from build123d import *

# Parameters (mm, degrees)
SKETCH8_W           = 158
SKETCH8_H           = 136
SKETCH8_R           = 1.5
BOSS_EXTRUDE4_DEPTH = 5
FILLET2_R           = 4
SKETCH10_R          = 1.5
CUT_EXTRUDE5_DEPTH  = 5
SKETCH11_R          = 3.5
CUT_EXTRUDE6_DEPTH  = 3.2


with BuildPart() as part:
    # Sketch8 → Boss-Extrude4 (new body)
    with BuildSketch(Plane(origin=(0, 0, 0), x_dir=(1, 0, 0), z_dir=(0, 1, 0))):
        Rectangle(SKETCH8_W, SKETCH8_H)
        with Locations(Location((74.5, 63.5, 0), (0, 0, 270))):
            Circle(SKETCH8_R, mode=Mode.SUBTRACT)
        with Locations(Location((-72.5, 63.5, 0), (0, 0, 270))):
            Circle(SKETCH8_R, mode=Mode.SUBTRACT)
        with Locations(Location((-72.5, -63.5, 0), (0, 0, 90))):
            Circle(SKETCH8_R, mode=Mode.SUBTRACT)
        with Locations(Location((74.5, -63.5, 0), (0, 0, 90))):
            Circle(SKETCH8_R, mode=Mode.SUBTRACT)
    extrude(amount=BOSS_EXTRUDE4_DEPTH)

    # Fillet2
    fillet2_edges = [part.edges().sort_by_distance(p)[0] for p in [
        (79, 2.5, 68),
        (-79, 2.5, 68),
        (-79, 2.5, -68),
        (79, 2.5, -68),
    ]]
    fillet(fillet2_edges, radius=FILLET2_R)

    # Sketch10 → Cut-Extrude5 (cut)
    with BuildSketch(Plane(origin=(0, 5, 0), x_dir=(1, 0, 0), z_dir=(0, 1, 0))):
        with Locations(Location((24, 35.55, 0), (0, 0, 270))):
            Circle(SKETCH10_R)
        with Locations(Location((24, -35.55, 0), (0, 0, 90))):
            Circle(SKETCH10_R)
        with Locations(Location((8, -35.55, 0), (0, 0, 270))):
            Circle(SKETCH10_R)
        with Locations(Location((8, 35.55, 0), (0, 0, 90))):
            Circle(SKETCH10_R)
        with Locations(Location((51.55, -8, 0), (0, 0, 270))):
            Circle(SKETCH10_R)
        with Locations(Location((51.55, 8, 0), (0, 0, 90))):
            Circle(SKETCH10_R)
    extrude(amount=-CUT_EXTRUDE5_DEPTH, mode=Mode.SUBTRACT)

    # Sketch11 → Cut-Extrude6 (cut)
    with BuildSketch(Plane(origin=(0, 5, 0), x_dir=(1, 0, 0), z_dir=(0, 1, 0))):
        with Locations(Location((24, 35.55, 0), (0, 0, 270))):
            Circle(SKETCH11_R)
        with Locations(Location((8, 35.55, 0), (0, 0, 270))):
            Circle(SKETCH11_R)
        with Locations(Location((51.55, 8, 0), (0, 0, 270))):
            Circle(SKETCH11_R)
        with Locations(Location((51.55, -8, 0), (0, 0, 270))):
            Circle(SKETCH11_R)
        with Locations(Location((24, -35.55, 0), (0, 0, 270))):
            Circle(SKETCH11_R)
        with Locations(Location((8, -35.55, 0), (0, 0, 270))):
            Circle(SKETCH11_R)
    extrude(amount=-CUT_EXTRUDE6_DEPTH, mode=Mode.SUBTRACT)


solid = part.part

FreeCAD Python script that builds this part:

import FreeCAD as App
import Part
import Sketcher

V = App.Vector
Q = App.Units.Quantity


def edges_at(feature, points):
    """Names of the edges that pass closest to the given points."""
    edges = feature.Shape.Edges
    near = lambda p: min(range(len(edges)), key=lambda i: edges[i].distToShape(Part.Vertex(*p))[0])
    return sorted({f"Edge{near(p) + 1}" for p in points})


def add_polygon(sketch, points):
    """Adds a closed chain of lines whose ends are joined by coincident constraints."""
    first, n = sketch.GeometryCount, len(points)
    for a, b in zip(points, points[1:] + points[:1]):
        sketch.addGeometry(Part.LineSegment(App.Vector(*a, 0), App.Vector(*b, 0)), False)
    for i in range(n):
        sketch.addConstraint(Sketcher.Constraint("Coincident", first + i, 2, first + (i + 1) % n, 1))

doc = App.newDocument("Part")
body = doc.addObject("PartDesign::Body", "Body")

# Sketch on XZ plane
sketch1 = doc.addObject("Sketcher::SketchObject", "Sketch")
body.addObject(sketch1)
sketch1.AttachmentSupport = (doc.XZ_Plane, [""])
sketch1.MapMode = "FlatFace"
add_polygon(sketch1, [(-79, -68), (-79, 68), (79, 68), (79, -68)])  # lines 0-3
sketch1.addGeometry(Part.Circle(V(-72.5, 63.5, 0), V(0, 0, 1), 1.5), False)  # 4
sketch1.addGeometry(Part.Circle(V(74.5, 63.5, 0), V(0, 0, 1), 1.5), False)  # 5
sketch1.addGeometry(Part.Circle(V(-72.5, -63.5, 0), V(0, 0, 1), 1.5), False)  # 6
sketch1.addGeometry(Part.Circle(V(74.5, -63.5, 0), V(0, 0, 1), 1.5), False)  # 7
sketch1.addConstraint([
    Sketcher.Constraint("Vertical", 0),
    Sketcher.Constraint("Horizontal", 1),
    Sketcher.Constraint("Vertical", 2),
    Sketcher.Constraint("Horizontal", 3),
    Sketcher.Constraint("Equal", 4, 5),
    Sketcher.Constraint("Equal", 5, 6),
    Sketcher.Constraint("Equal", 6, 7),
    Sketcher.Constraint("Symmetric", 0, 2, 2, 2, -1, 1),
    Sketcher.Constraint("Symmetric", 4, 3, 6, 3, -1),
    Sketcher.Constraint("Symmetric", 5, 3, 7, 3, -1),
    Sketcher.Constraint("Horizontal", 4, 3, 5, 3),
    Sketcher.Constraint("Diameter", 4, Q("3 mm")),
    Sketcher.Constraint("DistanceX", 1, 1, 1, 2, Q("158 mm")),
    Sketcher.Constraint("DistanceY", 0, 1, 0, 2, Q("136 mm")),
    Sketcher.Constraint("DistanceX", 4, 3, 5, 3, Q("147 mm")),
    Sketcher.Constraint("DistanceY", 6, 3, 4, 3, Q("127 mm")),
    Sketcher.Constraint("DistanceX", 4, 3, -1, 1, Q("72.5 mm")),
])
pad1 = doc.addObject("PartDesign::Pad", "Pad")
body.addObject(pad1)
pad1.Profile = sketch1
pad1.Length = 5
pad1.Reversed = True
doc.recompute()

fillet = doc.addObject("PartDesign::Fillet", "Fillet")
body.addObject(fillet)
fillet.Base = (pad1, edges_at(pad1, [
    (79, 2.5, 68),
    (-79, 2.5, 68),
    (-79, 2.5, -68),
    (79, 2.5, -68),
]))
fillet.Radius = 4

# Sketch on XZ plane
sketch2 = doc.addObject("Sketcher::SketchObject", "Sketch001")
body.addObject(sketch2)
sketch2.AttachmentSupport = (doc.XZ_Plane, [""])
sketch2.MapMode = "FlatFace"
sketch2.AttachmentOffset = App.Placement(V(0, 0, -5), App.Rotation())
sketch2.addGeometry([
    Part.Circle(V(24, -35.55, 0), V(0, 0, 1), 1.5),  # 0
    Part.Circle(V(24, 35.55, 0), V(0, 0, 1), 1.5),  # 1
    Part.Circle(V(8, 35.55, 0), V(0, 0, 1), 1.5),  # 2
    Part.Circle(V(8, -35.55, 0), V(0, 0, 1), 1.5),  # 3
    Part.Circle(V(51.55, 8, 0), V(0, 0, 1), 1.5),  # 4
    Part.Circle(V(51.55, -8, 0), V(0, 0, 1), 1.5),  # 5
], False)
sketch2.addConstraint([
    Sketcher.Constraint("Equal", 0, 1),
    Sketcher.Constraint("Equal", 1, 2),
    Sketcher.Constraint("Equal", 2, 3),
    Sketcher.Constraint("Equal", 3, 4),
    Sketcher.Constraint("Equal", 4, 5),
    Sketcher.Constraint("Symmetric", 0, 3, 1, 3, -1),
    Sketcher.Constraint("Symmetric", 2, 3, 3, 3, -1),
    Sketcher.Constraint("Symmetric", 4, 3, 5, 3, -1),
    Sketcher.Constraint("Horizontal", 1, 3, 2, 3),
    Sketcher.Constraint("Diameter", 0, Q("3 mm")),
    Sketcher.Constraint("DistanceX", -1, 1, 0, 3, Q("24 mm")),
    Sketcher.Constraint("DistanceX", -1, 1, 2, 3, Q("8 mm")),
    Sketcher.Constraint("DistanceY", -1, 1, 4, 3, Q("8 mm")),
    Sketcher.Constraint("DistanceY", 0, 3, 1, 3, Q("71.1 mm")),
    Sketcher.Constraint("DistanceX", -1, 1, 4, 3, Q("51.55 mm")),
])
pocket1 = doc.addObject("PartDesign::Pocket", "Pocket")
body.addObject(pocket1)
pocket1.Profile = sketch2
pocket1.Length = 5
pocket1.Reversed = True

# Sketch on XZ plane
sketch3 = doc.addObject("Sketcher::SketchObject", "Sketch002")
body.addObject(sketch3)
sketch3.AttachmentSupport = (doc.XZ_Plane, [""])
sketch3.MapMode = "FlatFace"
sketch3.AttachmentOffset = App.Placement(V(0, 0, -5), App.Rotation())
sketch3.addGeometry([
    Part.Circle(V(24, -35.55, 0), V(0, 0, 1), 3.5),  # 0
    Part.Circle(V(8, -35.55, 0), V(0, 0, 1), 3.5),  # 1
    Part.Circle(V(51.55, -8, 0), V(0, 0, 1), 3.5),  # 2
    Part.Circle(V(51.55, 8, 0), V(0, 0, 1), 3.5),  # 3
    Part.Circle(V(24, 35.55, 0), V(0, 0, 1), 3.5),  # 4
    Part.Circle(V(8, 35.55, 0), V(0, 0, 1), 3.5),  # 5
], False)
sketch3.addConstraint([
    Sketcher.Constraint("Equal", 0, 1),
    Sketcher.Constraint("Equal", 1, 2),
    Sketcher.Constraint("Equal", 2, 3),
    Sketcher.Constraint("Equal", 3, 4),
    Sketcher.Constraint("Equal", 4, 5),
    Sketcher.Constraint("Symmetric", 2, 3, 3, 3, -1),
    Sketcher.Constraint("Symmetric", 0, 3, 4, 3, -1),
    Sketcher.Constraint("Symmetric", 1, 3, 5, 3, -1),
    Sketcher.Constraint("Horizontal", 0, 3, 1, 3),
    Sketcher.Constraint("Diameter", 0, Q("7 mm")),
    Sketcher.Constraint("DistanceX", -1, 1, 0, 3, Q("24 mm")),
    Sketcher.Constraint("DistanceX", -1, 1, 1, 3, Q("8 mm")),
    Sketcher.Constraint("DistanceY", 2, 3, -1, 1, Q("8 mm")),
    Sketcher.Constraint("DistanceY", 0, 3, 4, 3, Q("71.1 mm")),
    Sketcher.Constraint("DistanceX", -1, 1, 2, 3, Q("51.55 mm")),
])
pocket2 = doc.addObject("PartDesign::Pocket", "Pocket001")
body.addObject(pocket2)
pocket2.Profile = sketch3
pocket2.Length = 3.2
pocket2.Reversed = True

doc.recompute()
